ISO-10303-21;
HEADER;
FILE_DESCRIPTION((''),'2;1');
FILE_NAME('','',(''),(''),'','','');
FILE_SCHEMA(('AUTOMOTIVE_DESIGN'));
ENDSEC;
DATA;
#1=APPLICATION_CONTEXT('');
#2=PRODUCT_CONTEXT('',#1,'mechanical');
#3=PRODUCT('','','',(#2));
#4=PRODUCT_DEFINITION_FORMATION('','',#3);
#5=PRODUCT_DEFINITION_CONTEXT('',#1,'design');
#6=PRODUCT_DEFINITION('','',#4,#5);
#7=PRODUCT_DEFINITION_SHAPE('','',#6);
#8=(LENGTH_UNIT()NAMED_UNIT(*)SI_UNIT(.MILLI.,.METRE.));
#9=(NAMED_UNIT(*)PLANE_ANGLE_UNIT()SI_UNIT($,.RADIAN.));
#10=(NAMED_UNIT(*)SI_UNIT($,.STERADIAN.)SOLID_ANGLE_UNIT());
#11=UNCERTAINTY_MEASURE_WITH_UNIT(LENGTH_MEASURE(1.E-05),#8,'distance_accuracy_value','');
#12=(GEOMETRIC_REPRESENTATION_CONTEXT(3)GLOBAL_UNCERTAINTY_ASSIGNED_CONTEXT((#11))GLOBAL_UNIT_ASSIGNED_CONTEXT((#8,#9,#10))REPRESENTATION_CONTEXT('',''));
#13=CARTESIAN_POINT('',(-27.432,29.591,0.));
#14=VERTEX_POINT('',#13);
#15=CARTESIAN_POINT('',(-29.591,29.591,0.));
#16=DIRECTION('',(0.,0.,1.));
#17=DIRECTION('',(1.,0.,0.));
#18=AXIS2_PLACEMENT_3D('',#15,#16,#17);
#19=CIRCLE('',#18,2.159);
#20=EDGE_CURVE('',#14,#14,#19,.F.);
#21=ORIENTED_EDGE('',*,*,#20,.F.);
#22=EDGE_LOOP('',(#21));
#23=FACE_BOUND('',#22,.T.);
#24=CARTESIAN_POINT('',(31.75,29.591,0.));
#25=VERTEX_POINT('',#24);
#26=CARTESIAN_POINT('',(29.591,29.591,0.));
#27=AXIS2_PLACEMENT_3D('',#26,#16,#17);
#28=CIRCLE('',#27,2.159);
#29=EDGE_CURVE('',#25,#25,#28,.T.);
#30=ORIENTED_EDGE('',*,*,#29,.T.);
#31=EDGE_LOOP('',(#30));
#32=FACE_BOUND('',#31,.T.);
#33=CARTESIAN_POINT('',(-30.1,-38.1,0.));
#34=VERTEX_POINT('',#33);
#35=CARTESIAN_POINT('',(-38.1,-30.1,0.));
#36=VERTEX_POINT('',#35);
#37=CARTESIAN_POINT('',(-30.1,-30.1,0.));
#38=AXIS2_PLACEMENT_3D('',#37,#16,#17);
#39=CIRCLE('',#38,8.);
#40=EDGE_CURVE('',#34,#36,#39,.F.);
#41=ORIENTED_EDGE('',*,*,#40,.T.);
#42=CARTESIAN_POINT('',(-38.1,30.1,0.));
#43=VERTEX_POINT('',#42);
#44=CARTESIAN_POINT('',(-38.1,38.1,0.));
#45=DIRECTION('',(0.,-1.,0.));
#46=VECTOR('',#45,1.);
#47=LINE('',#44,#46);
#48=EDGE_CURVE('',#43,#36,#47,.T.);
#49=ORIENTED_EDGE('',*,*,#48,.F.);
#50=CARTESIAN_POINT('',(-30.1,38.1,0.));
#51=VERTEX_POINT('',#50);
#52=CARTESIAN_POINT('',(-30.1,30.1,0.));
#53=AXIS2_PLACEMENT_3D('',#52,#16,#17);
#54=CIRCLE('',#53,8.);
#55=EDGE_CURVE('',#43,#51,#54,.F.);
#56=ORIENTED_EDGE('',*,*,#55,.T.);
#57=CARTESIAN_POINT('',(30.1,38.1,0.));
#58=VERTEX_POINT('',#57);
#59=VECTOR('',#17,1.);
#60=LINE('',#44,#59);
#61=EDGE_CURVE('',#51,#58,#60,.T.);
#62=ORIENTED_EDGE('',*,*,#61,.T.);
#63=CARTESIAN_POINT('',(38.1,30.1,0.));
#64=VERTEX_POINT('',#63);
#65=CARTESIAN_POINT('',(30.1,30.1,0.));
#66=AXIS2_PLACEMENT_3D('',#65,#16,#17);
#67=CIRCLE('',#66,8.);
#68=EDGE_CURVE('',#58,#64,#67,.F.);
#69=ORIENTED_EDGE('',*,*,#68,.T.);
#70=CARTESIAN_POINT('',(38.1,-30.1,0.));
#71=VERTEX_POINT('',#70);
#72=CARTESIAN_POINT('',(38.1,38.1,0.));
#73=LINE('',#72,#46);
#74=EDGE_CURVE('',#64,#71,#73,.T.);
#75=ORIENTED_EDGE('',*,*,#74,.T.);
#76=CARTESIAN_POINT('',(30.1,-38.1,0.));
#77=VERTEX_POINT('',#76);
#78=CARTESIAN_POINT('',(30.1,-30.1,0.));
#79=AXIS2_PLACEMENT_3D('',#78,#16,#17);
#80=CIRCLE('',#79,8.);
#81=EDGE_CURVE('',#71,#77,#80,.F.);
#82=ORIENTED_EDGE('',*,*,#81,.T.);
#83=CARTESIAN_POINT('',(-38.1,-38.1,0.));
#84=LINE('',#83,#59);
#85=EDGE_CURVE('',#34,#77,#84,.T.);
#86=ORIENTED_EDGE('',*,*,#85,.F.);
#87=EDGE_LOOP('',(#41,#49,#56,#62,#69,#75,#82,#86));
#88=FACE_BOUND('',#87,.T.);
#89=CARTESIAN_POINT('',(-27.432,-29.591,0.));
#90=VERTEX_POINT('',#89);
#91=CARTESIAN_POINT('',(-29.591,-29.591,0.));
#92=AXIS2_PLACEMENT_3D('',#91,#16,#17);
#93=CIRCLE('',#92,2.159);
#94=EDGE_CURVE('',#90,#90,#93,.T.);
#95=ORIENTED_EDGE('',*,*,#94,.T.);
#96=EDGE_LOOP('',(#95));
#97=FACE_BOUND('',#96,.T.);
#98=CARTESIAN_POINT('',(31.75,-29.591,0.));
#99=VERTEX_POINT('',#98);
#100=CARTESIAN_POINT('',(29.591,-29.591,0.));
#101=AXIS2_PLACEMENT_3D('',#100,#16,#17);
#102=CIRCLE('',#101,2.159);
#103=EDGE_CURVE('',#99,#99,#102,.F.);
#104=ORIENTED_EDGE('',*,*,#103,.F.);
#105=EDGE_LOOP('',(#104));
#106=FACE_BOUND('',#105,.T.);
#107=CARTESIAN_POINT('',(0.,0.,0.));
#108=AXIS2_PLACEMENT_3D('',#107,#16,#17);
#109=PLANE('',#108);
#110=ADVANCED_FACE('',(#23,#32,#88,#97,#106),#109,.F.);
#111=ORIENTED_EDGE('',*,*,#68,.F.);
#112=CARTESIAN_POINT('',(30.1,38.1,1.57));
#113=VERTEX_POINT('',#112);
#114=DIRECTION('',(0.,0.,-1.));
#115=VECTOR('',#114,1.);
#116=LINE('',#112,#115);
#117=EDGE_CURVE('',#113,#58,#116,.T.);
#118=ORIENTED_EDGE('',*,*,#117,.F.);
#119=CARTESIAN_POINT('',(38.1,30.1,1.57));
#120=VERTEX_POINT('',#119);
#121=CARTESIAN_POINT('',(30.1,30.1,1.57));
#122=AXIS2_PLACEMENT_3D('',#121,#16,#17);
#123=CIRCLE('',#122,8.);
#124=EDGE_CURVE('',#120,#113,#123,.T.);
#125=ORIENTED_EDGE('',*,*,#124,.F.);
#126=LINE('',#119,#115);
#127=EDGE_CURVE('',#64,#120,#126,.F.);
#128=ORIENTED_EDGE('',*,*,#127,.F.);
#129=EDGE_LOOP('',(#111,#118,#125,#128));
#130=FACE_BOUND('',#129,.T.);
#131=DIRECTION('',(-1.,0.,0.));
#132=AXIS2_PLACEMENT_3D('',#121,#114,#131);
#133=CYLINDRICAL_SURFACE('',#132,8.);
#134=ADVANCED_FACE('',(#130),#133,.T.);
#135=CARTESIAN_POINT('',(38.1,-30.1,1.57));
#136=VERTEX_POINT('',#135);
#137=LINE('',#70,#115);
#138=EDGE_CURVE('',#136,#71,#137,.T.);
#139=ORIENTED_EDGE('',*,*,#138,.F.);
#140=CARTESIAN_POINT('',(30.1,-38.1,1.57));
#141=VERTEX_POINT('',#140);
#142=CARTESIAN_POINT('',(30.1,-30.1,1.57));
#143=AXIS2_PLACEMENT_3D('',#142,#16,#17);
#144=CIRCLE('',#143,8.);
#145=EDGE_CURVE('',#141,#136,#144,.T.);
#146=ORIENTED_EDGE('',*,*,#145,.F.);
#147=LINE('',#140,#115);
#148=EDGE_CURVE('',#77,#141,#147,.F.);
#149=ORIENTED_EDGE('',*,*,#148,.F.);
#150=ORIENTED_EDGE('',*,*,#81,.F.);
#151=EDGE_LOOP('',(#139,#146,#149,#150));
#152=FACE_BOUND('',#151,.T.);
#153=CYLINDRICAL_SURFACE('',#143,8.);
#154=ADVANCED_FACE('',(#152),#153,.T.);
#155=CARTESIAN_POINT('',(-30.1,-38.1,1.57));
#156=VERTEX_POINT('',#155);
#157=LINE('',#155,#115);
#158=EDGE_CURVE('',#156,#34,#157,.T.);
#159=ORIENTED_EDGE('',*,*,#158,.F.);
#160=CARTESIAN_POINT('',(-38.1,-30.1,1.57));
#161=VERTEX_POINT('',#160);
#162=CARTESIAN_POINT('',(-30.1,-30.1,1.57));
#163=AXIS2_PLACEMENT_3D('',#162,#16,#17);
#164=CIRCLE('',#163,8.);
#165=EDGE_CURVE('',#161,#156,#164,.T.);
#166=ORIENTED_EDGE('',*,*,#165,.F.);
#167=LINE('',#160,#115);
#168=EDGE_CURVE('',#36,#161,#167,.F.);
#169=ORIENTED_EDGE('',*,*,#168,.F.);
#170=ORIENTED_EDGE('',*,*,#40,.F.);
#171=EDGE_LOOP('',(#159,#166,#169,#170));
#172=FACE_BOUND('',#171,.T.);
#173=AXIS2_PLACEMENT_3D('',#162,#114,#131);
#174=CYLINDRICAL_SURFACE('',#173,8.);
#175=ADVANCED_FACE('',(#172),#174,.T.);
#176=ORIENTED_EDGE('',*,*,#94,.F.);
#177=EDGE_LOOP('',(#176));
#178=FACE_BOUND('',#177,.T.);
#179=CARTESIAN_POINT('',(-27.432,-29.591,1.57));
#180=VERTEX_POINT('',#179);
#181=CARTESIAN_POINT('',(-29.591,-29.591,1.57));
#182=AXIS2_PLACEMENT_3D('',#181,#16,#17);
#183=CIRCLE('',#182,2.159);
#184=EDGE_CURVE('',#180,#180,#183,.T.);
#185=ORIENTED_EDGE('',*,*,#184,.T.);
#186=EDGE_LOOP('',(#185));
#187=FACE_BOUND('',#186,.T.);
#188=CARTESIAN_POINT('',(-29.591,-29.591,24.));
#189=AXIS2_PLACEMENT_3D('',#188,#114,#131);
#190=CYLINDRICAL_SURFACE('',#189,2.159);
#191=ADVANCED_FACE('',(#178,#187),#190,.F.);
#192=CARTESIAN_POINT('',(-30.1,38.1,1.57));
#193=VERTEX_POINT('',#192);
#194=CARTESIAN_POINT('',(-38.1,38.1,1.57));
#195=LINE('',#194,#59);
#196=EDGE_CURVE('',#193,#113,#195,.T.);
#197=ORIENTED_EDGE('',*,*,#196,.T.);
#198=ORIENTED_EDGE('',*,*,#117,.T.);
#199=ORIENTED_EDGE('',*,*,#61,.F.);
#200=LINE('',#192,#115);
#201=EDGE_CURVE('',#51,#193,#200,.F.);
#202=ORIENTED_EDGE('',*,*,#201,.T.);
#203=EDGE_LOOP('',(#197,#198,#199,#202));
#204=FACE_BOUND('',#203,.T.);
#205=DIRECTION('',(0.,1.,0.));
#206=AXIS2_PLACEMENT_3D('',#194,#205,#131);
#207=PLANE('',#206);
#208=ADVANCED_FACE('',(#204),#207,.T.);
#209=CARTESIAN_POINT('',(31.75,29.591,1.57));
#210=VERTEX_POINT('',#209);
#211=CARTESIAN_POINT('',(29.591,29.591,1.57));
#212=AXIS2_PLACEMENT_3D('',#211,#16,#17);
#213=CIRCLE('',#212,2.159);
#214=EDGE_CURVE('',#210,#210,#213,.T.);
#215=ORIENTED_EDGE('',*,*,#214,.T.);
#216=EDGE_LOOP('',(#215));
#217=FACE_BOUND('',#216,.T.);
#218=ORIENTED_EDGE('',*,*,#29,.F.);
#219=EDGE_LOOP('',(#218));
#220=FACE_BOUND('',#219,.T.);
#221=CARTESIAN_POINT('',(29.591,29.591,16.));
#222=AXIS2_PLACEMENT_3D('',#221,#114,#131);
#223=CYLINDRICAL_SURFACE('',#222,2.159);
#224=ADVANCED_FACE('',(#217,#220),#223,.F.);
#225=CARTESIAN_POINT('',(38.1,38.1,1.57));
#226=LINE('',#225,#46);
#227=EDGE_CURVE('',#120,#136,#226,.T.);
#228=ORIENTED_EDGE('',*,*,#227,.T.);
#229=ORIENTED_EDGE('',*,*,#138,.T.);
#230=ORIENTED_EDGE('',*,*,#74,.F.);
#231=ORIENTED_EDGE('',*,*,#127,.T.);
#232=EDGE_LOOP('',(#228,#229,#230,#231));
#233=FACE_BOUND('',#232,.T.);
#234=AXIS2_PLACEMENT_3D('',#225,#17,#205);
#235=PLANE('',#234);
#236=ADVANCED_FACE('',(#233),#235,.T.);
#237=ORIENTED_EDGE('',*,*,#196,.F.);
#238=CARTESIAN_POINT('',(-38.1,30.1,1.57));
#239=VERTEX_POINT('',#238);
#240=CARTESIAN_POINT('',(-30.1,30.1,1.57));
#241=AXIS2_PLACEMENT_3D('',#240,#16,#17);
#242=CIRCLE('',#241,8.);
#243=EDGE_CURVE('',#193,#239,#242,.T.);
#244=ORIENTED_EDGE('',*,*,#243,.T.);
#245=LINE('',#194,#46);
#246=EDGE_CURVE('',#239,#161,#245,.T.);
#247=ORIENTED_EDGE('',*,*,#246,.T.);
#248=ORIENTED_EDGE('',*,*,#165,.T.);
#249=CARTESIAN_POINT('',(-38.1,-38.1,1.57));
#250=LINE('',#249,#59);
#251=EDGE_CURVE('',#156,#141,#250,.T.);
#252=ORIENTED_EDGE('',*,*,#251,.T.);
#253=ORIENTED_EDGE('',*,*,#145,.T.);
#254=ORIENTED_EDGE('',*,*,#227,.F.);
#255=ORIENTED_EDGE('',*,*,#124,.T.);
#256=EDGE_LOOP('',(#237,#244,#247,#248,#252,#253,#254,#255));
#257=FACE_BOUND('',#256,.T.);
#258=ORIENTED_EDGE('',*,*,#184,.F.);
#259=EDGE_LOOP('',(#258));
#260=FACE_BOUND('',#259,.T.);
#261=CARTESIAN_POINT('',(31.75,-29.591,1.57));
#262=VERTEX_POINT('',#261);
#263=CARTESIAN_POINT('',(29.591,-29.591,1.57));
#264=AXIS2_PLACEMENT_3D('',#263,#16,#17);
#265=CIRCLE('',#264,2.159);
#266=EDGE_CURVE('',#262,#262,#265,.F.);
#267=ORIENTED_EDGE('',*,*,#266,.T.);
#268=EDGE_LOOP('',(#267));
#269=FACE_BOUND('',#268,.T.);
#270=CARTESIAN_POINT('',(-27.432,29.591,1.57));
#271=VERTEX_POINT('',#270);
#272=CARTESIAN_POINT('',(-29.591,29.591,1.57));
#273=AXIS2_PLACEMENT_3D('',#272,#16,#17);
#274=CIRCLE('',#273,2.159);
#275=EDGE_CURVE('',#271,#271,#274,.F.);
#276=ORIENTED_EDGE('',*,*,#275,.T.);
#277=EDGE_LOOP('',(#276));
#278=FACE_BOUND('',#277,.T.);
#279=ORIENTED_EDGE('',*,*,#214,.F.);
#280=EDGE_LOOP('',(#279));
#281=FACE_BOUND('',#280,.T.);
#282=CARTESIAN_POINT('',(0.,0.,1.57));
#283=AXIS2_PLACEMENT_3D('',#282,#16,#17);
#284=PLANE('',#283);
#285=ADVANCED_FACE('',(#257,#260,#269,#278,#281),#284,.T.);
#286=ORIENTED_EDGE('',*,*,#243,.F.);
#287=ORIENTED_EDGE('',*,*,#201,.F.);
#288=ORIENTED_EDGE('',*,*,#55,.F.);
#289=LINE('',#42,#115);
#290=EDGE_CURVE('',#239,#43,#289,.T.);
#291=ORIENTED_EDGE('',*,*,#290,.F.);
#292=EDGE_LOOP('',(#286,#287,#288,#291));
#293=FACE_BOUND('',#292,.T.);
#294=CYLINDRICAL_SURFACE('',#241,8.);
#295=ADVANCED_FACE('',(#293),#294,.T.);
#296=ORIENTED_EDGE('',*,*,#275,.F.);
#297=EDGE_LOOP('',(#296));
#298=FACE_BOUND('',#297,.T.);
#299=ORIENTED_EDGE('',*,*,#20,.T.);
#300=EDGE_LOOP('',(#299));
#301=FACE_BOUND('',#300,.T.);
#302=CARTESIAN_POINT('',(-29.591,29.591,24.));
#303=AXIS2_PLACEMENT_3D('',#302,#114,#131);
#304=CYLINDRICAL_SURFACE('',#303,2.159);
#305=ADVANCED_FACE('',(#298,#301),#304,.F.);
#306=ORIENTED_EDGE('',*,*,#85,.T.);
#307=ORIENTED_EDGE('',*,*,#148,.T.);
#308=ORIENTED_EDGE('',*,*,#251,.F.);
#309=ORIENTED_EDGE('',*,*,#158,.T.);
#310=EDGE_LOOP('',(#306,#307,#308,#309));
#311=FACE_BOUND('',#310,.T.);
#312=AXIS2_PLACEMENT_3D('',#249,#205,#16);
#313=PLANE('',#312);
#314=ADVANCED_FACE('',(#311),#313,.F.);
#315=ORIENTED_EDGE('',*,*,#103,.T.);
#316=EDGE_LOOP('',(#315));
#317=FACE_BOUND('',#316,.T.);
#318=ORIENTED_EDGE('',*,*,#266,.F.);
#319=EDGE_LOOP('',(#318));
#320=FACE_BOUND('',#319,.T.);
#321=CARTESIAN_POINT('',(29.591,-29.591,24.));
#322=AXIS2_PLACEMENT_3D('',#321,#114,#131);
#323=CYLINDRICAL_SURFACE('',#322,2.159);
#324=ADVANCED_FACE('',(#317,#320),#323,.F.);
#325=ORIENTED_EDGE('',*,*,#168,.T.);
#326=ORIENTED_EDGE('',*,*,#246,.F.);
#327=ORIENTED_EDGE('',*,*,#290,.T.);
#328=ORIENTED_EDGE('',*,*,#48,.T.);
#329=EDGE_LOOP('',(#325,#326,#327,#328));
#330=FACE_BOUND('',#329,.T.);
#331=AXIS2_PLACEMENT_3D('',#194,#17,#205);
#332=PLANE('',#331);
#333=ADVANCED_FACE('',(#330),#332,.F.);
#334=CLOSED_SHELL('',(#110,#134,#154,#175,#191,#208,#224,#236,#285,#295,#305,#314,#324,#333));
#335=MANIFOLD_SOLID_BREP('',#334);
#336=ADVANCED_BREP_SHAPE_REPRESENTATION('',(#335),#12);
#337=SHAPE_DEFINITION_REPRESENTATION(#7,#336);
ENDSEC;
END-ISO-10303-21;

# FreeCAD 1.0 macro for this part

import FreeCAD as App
import Part
import Sketcher


def edges_at(feature, points):
    """Names of the edges that pass closest to the given points."""
    edges = feature.Shape.Edges
    near = lambda p: min(range(len(edges)), key=lambda i: edges[i].distToShape(Part.Vertex(*p))[0])
    return sorted({f"Edge{near(p) + 1}" for p in points})

doc = App.newDocument("Part")
body = doc.addObject("PartDesign::Body", "Body")

# Sketch on XY plane
sketch1 = body.newObject("Sketcher::SketchObject", "Sketch")
sketch1.AttachmentSupport = (doc.getObject("XY_Plane"), [""])
sketch1.MapMode = "FlatFace"
sketch1.addGeometry([
    Part.LineSegment(App.Vector(-38, 38, 0), App.Vector(-38, -38, 0)),
    Part.LineSegment(App.Vector(-38, -38, 0), App.Vector(38, -38, 0)),
    Part.LineSegment(App.Vector(38, -38, 0), App.Vector(38, 38, 0)),
    Part.LineSegment(App.Vector(38, 38, 0), App.Vector(-38, 38, 0)),
], False)
sketch1.addConstraint([
    Sketcher.Constraint("Coincident", 0, 2, 1, 1),
    Sketcher.Constraint("Coincident", 1, 2, 2, 1),
    Sketcher.Constraint("Coincident", 2, 2, 3, 1),
    Sketcher.Constraint("Coincident", 3, 2, 0, 1),
    Sketcher.Constraint("Vertical", 0),
    Sketcher.Constraint("Horizontal", 1),
    Sketcher.Constraint("Vertical", 2),
    Sketcher.Constraint("Horizontal", 3),
    Sketcher.Constraint("Symmetric", 0, 2, 2, 2, -1, 1),
    Sketcher.Constraint("Equal", 3, 0),
    Sketcher.Constraint("DistanceX", 1, 1, 1, 2, 76.2),
])
pad1 = body.newObject("PartDesign::Pad", "Pad")
pad1.Profile = sketch1
pad1.Length = 1.57

# Sketch on XY plane
sketch2 = body.newObject("Sketcher::SketchObject", "Sketch001")
sketch2.AttachmentSupport = (doc.getObject("XY_Plane"), [""])
sketch2.MapMode = "FlatFace"
sketch2.addGeometry(Part.Circle(App.Vector(29.6, 29.6, 0), App.Vector(0, 0, 1), 2.2), False)
sketch2.addConstraint([
    Sketcher.Constraint("Diameter", 0, 4.318),
    Sketcher.Constraint("DistanceX", -1, 1, 0, 3, 29.591),
    Sketcher.Constraint("DistanceY", -1, 1, 0, 3, 29.591),
])
pocket1 = body.newObject("PartDesign::Pocket", "Pocket")
pocket1.Profile = sketch2
pocket1.Type = "ThroughAll"
pocket1.Midplane = True

# Sketch on XY plane
sketch3 = body.newObject("Sketcher::SketchObject", "Sketch002")
sketch3.AttachmentSupport = (doc.getObject("XY_Plane"), [""])
sketch3.MapMode = "FlatFace"
sketch3.addGeometry([
    Part.Circle(App.Vector(-29.6, 29.6, 0), App.Vector(0, 0, 1), 2.2),
    Part.Circle(App.Vector(-29.6, -29.6, 0), App.Vector(0, 0, 1), 2.2),
    Part.Circle(App.Vector(29.6, -29.6, 0), App.Vector(0, 0, 1), 2.2),
], False)
sketch3.addConstraint([
    Sketcher.Constraint("Equal", 0, 1),
    Sketcher.Constraint("Equal", 1, 2),
    Sketcher.Constraint("Symmetric", 0, 3, 2, 3, -1, 1),
    Sketcher.Constraint("Symmetric", 1, 3, 2, 3, -2),
    Sketcher.Constraint("Diameter", 0, 4.318),
    Sketcher.Constraint("DistanceX", 0, 3, -1, 1, 29.591),
    Sketcher.Constraint("DistanceY", -1, 1, 0, 3, 29.591),
])
pocket2 = body.newObject("PartDesign::Pocket", "Pocket001")
pocket2.Profile = sketch3
pocket2.Type = "ThroughAll"
pocket2.Midplane = True
doc.recompute()

fillet = body.newObject("PartDesign::Fillet", "Fillet")
fillet.Base = (pocket2, edges_at(pocket2, [
    (-38.1, 38.1, 0.785),
    (38.1, 38.1, 0.785),
    (38.1, -38.1, 0.785),
    (-38.1, -38.1, 0.785),
]))
fillet.Radius = 8

doc.recompute()
